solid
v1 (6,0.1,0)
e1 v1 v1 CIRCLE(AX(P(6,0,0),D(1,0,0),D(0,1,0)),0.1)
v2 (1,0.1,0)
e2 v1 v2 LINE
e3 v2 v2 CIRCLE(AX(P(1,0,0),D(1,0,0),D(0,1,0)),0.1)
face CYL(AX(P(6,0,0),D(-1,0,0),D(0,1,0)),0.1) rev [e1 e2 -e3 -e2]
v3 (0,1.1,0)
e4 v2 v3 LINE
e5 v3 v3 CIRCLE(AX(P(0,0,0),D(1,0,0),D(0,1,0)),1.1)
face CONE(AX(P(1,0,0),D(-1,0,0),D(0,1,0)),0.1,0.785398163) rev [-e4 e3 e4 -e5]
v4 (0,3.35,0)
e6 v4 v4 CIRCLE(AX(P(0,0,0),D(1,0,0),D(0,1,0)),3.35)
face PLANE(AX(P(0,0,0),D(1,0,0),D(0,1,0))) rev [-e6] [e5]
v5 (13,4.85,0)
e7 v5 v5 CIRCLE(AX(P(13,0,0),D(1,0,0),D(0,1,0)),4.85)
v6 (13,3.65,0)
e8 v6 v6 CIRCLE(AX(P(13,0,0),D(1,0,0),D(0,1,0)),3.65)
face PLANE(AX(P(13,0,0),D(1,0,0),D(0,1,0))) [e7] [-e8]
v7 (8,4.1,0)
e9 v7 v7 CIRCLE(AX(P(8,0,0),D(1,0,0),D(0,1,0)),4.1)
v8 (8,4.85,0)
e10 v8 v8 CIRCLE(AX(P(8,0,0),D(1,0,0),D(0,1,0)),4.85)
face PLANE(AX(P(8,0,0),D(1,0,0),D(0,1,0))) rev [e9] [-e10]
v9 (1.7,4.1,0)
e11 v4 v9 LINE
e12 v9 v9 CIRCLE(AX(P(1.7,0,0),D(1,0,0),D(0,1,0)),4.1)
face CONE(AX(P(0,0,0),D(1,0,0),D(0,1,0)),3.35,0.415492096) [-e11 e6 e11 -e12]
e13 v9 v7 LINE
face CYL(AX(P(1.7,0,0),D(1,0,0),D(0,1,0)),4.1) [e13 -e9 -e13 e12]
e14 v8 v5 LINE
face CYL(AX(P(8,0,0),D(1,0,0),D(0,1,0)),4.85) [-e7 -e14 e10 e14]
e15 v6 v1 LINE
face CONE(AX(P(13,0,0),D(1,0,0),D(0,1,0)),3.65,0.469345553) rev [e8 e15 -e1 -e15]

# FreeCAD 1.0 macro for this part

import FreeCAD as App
import Part
import Sketcher

V = App.Vector
Q = App.Units.Quantity


def add_polygon(sketch, points):
    """Adds a closed chain of lines whose ends are joined by coincident constraints."""
    first, n = sketch.GeometryCount, len(points)
    for a, b in zip(points, points[1:] + points[:1]):
        sketch.addGeometry(Part.LineSegment(App.Vector(*a, 0), App.Vector(*b, 0)), False)
    for i in range(n):
        sketch.addConstraint(Sketcher.Constraint("Coincident", first + i, 2, first + (i + 1) % n, 1))

doc = App.newDocument("Part")
body = doc.addObject("PartDesign::Body", "Body")

# Sketch on XY plane
sketch1 = body.newObject("Sketcher::SketchObject", "Sketch")
sketch1.AttachmentSupport = (doc.getObject("XY_Plane"), [""])
sketch1.MapMode = "FlatFace"
add_polygon(sketch1, [(0, 1.1), (1, 0.1), (6, 0.1), (13, 3.6), (13, 4.8), (8, 4.8), (8, 4.1), (1.7, 4.1), (0, 3.4)])  # lines 0-8
sketch1.addConstraint(Sketcher.Constraint("Horizontal", 1))
sketch1.addConstraint(Sketcher.Constraint("Vertical", 3))
sketch1.addConstraint(Sketcher.Constraint("Horizontal", 4))
sketch1.addConstraint(Sketcher.Constraint("Vertical", 5))
sketch1.addConstraint(Sketcher.Constraint("Horizontal", 6))
sketch1.addConstraint(Sketcher.Constraint("Vertical", 8))
sketch1.addConstraint(Sketcher.Constraint("PointOnObject", 7, 2, -2))
sketch1.addConstraint(Sketcher.Constraint("Equal", 1, 4))
sketch1.addConstraint(Sketcher.Constraint("DistanceX", 1, 1, 1, 2, Q("5 mm")))
sketch1.addConstraint(Sketcher.Constraint("DistanceY", 3, 1, 3, 2, Q("1.2 mm")))
sketch1.addConstraint(Sketcher.Constraint("DistanceX", -1, 1, 0, 2, Q("1 mm")))
sketch1.addConstraint(Sketcher.Constraint("DistanceX", -1, 1, 2, 2, Q("13 mm")))
sketch1.addConstraint(Sketcher.Constraint("DistanceY", 0, 2, 8, 2, Q("1 mm")))
sketch1.addConstraint(Sketcher.Constraint("DistanceY", -1, 1, 0, 2, Q("0.1 mm")))
sketch1.addConstraint(Sketcher.Constraint("DistanceY", -1, 1, 5, 2, Q("4.1 mm")))
sketch1.addConstraint(Sketcher.Constraint("DistanceX", -1, 1, 6, 2, Q("1.7 mm")))
sketch1.addConstraint(Sketcher.Constraint("DistanceY", -1, 1, 3, 2, Q("4.85 mm")))
sketch1.addConstraint(Sketcher.Constraint("DistanceY", -1, 1, 7, 2, Q("3.35 mm")))
revolution = body.newObject("PartDesign::Revolution", "Revolution")
revolution.Profile = sketch1
revolution.ReferenceAxis = (sketch1, ["H_Axis"])
revolution.Angle = 360

doc.recompute()
